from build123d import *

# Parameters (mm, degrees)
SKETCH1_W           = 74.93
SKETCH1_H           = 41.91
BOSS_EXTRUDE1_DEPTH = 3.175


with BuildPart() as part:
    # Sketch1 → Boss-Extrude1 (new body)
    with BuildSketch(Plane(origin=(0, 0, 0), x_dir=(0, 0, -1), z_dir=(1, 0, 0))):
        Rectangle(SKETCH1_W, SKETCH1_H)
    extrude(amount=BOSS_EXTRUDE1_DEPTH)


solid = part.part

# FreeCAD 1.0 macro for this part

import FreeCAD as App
import Part
import Sketcher
from FreeCAD import Vector
Q = App.Units.Quantity


def add_polygon(sketch, points):
    """Adds a closed chain of lines whose ends are joined by coincident constraints."""
    first, n = sketch.GeometryCount, len(points)
    for a, b in zip(points, points[1:] + points[:1]):
        sketch.addGeometry(Part.LineSegment(App.Vector(*a, 0), App.Vector(*b, 0)), False)
    for i in range(n):
        sketch.addConstraint(Sketcher.Constraint("Coincident", first + i, 2, first + (i + 1) % n, 1))

doc = App.newDocument("Part")
params = doc.addObject("Spreadsheet::Sheet", "Params")
for row, (alias, value) in enumerate([
    ("sketch1_width", "1.65 in"),
    ("sketch1_height", "2.95 in"),
    ("pad1_length", "0.125 in"),
], start=1):
    params.set(f"A{row}", alias)
    params.set(f"B{row}", "=" + value)
    params.setAlias(f"B{row}", alias)

body = doc.addObject("PartDesign::Body", "Body")

# Sketch on YZ plane
sketch1 = body.newObject("Sketcher::SketchObject", "Sketch")
sketch1.AttachmentSupport = (doc.getObject("YZ_Plane"), [""])
sketch1.MapMode = "FlatFace"
add_polygon(sketch1, [(21, 37), (-21, 37), (-21, -37), (21, -37)])  # lines 0-3
sketch1.addConstraint([
    Sketcher.Constraint("Horizontal", 0),
    Sketcher.Constraint("Vertical", 1),
    Sketcher.Constraint("Horizontal", 2),
    Sketcher.Constraint("Vertical", 3),
    Sketcher.Constraint("Symmetric", 0, 2, 2, 2, -1, 1),
    Sketcher.Constraint("DistanceX", 0, 2, 0, 1, Q("1.65 in")),
    Sketcher.Constraint("DistanceY", 1, 2, 1, 1, Q("2.95 in")),
])
sketch1.setExpression("Constraints[9]", "Params.sketch1_width")
sketch1.setExpression("Constraints[10]", "Params.sketch1_height")
pad1 = body.newObject("PartDesign::Pad", "Pad")
pad1.Profile = sketch1
pad1.setExpression("Length", "Params.pad1_length")

doc.recompute()
